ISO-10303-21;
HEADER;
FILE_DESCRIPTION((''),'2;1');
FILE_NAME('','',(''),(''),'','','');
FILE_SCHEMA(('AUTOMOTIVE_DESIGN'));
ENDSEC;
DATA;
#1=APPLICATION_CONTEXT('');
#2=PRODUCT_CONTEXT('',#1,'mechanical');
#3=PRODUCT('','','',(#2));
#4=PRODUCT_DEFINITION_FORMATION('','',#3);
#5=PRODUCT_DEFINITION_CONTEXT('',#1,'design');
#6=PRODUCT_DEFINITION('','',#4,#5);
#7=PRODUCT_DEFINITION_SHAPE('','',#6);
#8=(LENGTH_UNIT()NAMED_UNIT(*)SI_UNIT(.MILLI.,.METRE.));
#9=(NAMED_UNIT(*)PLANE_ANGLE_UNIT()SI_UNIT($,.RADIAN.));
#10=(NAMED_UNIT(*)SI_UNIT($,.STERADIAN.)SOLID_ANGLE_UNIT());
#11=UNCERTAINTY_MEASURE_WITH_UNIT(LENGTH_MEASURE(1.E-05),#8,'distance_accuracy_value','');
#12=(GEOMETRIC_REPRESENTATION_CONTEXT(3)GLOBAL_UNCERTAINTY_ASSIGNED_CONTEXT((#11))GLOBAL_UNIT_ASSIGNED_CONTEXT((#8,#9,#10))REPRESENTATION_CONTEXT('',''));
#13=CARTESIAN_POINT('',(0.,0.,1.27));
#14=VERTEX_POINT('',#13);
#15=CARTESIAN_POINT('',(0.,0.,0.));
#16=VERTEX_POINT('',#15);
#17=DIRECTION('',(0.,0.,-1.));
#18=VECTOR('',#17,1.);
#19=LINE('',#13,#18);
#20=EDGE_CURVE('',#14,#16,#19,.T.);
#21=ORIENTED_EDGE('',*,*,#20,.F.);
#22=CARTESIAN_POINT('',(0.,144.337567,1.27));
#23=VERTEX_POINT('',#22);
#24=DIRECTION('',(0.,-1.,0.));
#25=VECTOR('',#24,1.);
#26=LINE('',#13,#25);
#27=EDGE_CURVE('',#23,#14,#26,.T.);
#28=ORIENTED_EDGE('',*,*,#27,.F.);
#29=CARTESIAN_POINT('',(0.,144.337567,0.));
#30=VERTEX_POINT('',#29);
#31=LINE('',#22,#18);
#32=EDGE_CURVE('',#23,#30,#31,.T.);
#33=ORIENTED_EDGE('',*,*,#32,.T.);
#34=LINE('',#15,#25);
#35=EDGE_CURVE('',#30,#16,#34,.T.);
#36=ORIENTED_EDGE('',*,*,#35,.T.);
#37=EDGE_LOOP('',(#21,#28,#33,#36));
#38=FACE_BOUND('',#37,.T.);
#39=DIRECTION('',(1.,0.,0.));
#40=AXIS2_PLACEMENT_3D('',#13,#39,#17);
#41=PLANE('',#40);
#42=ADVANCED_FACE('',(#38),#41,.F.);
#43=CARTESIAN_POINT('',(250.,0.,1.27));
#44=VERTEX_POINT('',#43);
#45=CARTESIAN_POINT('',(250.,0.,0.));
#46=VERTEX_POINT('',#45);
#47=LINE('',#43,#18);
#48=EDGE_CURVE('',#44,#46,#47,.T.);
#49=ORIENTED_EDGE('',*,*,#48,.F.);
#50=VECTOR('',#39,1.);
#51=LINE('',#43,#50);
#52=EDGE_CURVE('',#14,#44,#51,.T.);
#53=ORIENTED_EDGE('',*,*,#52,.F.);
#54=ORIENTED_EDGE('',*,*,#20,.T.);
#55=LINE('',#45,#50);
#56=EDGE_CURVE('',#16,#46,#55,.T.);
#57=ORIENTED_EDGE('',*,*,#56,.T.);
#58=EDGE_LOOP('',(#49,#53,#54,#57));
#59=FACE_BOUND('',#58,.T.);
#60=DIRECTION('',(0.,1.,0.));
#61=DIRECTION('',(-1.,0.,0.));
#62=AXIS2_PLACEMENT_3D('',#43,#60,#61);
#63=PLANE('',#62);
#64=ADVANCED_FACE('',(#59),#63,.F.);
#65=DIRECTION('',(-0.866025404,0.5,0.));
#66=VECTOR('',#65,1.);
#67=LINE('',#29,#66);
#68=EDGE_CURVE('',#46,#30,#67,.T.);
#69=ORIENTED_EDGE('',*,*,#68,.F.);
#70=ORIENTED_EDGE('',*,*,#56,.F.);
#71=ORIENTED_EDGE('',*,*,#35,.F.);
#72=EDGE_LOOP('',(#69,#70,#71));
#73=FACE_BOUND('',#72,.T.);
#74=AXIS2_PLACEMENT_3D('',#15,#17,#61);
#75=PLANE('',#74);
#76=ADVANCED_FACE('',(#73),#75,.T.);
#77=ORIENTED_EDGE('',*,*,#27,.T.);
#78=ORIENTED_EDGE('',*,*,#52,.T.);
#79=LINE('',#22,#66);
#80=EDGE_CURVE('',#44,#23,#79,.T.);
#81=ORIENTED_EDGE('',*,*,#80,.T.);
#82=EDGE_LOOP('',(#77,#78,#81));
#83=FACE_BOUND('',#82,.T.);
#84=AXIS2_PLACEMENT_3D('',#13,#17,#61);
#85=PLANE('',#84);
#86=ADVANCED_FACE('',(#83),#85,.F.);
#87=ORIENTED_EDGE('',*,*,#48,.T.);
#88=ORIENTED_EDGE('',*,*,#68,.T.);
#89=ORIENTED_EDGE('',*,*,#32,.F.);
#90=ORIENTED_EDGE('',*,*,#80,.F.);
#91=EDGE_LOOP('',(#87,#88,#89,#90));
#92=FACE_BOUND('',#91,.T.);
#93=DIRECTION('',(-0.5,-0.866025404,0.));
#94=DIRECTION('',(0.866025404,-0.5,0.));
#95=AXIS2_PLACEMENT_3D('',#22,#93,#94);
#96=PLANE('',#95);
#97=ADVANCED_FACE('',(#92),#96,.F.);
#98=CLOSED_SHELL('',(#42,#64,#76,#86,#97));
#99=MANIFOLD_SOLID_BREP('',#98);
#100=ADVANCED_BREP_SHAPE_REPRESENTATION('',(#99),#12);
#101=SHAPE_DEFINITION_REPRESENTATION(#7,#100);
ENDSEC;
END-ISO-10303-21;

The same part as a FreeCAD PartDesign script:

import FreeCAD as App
import Part
import Sketcher
Q = App.Units.Quantity


def add_polygon(sketch, points):
    """Adds a closed chain of lines whose ends are joined by coincident constraints."""
    first, n = sketch.GeometryCount, len(points)
    for a, b in zip(points, points[1:] + points[:1]):
        sketch.addGeometry(Part.LineSegment(App.Vector(*a, 0), App.Vector(*b, 0)), False)
    for i in range(n):
        sketch.addConstraint(Sketcher.Constraint("Coincident", first + i, 2, first + (i + 1) % n, 1))

doc = App.newDocument("Part")
body = doc.addObject("PartDesign::Body", "Body")

# Sketch on XY plane
sketch1 = body.newObject("Sketcher::SketchObject", "Sketch")
sketch1.AttachmentSupport = (doc.getObject("XY_Plane"), [""])
sketch1.MapMode = "FlatFace"
add_polygon(sketch1, [(0, 144), (0, 0), (250, 0)])  # lines 0-2
sketch1.addConstraint(Sketcher.Constraint("Vertical", 0))
sketch1.addConstraint(Sketcher.Constraint("Horizontal", 1))
sketch1.addConstraint(Sketcher.Constraint("Coincident", 0, 2, -1, 1))
sketch1.addConstraint(Sketcher.Constraint("DistanceX", 1, 1, 1, 2, 250.0))
sketch1.addConstraint(Sketcher.Constraint("Angle", 2, Q("150 deg")))
pad1 = body.newObject("PartDesign::Pad", "Pad")
pad1.Profile = sketch1
pad1.Length = 1.27

doc.recompute()
